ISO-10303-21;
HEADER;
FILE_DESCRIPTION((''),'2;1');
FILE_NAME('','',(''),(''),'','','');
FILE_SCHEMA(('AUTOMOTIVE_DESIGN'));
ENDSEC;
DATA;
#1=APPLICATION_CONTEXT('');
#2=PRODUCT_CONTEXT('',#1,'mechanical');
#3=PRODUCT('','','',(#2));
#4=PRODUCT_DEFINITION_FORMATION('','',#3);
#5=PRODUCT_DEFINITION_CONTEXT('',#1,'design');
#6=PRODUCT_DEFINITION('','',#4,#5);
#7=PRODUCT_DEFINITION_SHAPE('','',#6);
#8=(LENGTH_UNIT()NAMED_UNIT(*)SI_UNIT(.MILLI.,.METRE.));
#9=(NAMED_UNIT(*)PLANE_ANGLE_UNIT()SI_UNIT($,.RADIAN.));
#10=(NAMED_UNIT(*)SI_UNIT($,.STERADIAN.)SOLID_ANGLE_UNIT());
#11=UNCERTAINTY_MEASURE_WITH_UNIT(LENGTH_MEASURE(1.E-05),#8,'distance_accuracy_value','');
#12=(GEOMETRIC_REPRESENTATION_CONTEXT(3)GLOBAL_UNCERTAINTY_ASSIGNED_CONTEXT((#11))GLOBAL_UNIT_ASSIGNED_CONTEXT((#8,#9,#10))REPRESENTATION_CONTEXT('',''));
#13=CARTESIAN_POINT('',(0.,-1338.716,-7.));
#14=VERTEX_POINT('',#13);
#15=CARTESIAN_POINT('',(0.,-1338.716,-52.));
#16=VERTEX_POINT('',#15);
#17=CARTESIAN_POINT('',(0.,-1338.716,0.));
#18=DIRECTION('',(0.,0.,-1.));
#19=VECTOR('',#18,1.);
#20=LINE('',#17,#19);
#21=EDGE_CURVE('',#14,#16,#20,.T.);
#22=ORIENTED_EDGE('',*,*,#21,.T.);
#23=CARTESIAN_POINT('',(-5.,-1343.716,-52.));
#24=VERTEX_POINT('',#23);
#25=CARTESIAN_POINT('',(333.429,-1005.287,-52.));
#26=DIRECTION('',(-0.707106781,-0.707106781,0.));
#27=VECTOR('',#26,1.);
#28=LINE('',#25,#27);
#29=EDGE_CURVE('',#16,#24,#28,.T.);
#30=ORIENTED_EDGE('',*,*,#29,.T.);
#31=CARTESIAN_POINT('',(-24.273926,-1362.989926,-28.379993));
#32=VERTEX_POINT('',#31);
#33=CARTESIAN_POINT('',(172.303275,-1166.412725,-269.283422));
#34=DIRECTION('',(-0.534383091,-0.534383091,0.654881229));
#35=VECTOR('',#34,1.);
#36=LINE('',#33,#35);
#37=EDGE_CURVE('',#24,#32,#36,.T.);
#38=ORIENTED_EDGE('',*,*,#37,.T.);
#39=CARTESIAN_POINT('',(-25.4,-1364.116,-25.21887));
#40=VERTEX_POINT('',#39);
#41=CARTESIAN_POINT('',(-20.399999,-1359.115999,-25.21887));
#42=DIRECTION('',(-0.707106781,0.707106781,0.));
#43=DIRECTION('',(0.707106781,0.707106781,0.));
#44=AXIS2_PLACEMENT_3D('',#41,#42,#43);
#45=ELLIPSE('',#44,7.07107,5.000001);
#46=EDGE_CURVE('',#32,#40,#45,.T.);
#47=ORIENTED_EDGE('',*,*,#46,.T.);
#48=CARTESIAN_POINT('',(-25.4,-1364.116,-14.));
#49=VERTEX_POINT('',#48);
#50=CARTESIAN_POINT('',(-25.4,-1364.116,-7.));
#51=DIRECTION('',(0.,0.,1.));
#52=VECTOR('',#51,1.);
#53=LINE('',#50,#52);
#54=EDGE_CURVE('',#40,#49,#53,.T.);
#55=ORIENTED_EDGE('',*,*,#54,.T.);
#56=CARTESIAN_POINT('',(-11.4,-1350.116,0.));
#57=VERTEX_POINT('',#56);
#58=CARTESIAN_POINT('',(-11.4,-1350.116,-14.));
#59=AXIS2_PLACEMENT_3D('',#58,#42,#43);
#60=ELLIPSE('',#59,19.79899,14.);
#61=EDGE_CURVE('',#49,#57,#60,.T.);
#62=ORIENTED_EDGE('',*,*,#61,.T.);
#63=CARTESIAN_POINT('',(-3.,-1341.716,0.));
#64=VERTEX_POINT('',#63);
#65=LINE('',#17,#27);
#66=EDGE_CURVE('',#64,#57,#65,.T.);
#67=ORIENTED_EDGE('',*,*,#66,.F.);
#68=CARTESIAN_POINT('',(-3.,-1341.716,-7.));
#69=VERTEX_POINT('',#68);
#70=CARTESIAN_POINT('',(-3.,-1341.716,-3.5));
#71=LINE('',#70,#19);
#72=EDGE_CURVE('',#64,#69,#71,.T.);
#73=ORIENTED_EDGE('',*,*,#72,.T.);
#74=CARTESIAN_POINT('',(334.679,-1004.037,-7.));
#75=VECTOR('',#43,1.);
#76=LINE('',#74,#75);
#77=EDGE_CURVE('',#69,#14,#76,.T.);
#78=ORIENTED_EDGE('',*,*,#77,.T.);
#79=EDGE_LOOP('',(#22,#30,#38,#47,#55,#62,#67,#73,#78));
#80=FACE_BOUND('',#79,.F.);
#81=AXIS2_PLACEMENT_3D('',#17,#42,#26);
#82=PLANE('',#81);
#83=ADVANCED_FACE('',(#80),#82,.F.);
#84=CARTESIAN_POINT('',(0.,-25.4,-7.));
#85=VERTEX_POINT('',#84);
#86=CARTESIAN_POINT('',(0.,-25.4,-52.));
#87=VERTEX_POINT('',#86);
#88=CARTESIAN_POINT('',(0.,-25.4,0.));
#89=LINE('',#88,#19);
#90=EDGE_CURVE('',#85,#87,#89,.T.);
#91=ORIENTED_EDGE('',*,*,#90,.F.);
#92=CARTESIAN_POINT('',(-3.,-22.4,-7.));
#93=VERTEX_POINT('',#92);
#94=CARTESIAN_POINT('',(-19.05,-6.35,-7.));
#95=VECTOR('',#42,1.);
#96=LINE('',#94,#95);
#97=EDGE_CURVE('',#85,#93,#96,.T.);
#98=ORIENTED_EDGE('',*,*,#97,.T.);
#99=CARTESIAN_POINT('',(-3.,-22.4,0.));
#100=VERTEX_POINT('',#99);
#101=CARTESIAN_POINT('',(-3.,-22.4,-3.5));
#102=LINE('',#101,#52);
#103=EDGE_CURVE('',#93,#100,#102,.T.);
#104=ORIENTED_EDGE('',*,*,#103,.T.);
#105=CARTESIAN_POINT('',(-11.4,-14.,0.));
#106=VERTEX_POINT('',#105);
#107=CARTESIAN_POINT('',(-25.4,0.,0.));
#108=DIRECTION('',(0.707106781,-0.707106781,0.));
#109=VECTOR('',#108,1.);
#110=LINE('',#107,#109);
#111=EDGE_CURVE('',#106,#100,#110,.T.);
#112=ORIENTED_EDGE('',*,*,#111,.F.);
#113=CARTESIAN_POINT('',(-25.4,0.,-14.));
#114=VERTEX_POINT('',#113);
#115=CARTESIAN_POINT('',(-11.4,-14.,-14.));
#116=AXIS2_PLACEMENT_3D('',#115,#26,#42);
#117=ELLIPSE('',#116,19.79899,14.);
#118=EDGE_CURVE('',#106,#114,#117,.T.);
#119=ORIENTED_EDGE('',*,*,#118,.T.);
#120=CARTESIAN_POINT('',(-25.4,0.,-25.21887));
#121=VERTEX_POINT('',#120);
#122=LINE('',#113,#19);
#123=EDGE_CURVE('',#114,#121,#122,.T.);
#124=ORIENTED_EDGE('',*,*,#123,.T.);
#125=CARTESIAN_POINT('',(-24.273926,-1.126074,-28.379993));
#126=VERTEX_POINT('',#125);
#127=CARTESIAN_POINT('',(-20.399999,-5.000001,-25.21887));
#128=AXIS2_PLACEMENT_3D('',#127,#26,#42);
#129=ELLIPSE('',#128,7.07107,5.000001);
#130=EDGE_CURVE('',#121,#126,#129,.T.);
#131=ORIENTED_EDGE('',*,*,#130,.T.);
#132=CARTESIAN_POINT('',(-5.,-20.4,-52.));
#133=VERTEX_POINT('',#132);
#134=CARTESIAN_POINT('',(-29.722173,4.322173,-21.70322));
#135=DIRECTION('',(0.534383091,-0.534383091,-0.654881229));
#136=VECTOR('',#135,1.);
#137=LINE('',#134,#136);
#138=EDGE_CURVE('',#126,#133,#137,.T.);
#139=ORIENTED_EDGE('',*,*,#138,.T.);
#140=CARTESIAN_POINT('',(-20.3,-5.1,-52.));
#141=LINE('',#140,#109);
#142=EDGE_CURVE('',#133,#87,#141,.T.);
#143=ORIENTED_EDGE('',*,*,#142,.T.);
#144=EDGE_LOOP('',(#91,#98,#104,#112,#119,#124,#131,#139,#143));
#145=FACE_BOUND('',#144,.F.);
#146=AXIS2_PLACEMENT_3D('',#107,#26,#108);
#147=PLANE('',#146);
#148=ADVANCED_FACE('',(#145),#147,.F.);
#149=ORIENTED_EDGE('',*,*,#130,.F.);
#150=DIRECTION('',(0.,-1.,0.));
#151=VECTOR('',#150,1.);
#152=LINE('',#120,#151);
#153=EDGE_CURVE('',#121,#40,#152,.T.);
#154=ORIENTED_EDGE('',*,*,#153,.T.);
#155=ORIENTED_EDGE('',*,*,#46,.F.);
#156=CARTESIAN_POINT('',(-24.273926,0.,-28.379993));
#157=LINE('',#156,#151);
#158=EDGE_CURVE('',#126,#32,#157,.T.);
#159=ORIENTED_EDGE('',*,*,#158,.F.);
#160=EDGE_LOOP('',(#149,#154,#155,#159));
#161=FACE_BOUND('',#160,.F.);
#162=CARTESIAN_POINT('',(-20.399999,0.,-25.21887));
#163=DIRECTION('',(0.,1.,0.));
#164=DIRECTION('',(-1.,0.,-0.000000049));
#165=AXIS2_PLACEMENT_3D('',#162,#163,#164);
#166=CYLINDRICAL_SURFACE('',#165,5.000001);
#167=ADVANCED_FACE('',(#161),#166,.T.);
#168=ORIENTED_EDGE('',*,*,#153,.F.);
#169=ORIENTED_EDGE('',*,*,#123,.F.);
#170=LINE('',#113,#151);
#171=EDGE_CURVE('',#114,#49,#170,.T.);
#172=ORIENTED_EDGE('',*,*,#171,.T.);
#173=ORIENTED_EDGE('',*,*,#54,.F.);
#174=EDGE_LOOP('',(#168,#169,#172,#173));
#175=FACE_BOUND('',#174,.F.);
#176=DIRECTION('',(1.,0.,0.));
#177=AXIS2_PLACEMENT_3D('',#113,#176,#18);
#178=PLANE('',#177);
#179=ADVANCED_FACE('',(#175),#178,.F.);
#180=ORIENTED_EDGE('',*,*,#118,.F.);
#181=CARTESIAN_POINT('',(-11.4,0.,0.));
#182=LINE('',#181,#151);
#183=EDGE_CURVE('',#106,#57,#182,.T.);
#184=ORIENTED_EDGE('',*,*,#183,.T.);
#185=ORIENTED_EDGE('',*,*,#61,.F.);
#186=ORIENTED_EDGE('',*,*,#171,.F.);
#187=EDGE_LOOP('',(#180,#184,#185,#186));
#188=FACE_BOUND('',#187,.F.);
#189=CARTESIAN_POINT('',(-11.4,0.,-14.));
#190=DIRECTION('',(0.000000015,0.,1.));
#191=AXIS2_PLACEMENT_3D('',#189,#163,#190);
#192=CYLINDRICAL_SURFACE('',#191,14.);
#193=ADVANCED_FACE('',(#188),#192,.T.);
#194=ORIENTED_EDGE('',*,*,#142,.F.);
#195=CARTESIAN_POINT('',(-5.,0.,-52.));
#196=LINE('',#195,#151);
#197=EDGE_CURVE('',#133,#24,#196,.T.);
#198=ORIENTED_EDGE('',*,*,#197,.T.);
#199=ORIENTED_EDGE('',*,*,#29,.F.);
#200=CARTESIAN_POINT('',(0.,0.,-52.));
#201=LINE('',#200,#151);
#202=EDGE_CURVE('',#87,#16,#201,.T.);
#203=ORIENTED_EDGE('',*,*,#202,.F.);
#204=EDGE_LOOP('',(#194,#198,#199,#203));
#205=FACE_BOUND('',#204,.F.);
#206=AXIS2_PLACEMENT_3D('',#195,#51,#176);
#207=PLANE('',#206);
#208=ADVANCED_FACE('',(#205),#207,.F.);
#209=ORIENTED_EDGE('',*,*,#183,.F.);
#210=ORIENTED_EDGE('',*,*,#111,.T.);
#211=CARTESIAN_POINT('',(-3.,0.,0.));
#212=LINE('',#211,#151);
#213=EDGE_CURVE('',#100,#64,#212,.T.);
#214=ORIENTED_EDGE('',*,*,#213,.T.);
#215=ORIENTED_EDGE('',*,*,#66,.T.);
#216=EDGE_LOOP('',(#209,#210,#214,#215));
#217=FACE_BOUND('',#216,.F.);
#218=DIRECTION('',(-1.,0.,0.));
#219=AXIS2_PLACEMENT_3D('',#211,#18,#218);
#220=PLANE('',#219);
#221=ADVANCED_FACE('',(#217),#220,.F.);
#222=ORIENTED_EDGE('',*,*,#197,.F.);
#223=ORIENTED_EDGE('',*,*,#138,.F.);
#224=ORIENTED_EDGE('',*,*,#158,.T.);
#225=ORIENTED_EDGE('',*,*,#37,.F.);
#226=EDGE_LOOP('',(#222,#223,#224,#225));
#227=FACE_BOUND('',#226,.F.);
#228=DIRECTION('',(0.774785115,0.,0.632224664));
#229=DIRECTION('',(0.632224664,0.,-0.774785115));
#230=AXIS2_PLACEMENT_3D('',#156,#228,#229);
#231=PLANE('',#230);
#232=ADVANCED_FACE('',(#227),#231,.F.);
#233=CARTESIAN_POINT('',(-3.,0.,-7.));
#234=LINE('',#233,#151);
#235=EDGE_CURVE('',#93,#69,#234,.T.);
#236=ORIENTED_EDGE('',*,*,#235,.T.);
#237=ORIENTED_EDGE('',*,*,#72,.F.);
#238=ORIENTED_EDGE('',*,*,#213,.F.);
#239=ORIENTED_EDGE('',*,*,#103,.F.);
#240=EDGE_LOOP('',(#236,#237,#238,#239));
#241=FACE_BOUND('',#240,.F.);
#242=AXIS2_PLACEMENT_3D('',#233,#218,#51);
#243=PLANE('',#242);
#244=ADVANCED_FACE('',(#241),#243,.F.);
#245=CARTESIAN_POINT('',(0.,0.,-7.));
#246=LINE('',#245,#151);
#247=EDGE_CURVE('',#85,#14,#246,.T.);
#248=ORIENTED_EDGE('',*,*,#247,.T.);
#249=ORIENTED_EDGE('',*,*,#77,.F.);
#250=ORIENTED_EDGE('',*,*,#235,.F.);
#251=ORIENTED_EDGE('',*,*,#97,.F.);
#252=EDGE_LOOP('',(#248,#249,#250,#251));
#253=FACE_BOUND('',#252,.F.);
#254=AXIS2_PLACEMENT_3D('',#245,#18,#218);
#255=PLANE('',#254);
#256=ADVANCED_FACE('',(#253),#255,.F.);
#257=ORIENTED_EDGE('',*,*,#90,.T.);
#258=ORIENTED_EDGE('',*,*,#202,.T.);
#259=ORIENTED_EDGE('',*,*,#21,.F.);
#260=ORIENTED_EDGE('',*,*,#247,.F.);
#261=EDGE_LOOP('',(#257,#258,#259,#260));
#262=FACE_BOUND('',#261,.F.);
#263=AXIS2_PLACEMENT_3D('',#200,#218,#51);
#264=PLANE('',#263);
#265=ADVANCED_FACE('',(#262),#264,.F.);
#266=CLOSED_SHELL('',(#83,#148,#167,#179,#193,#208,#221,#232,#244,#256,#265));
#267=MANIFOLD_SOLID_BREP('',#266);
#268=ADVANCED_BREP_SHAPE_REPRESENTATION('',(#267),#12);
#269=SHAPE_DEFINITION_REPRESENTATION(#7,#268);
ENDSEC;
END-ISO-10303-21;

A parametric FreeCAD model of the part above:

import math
import FreeCAD as App
import Part
import Sketcher
from FreeCAD import Vector
Q = App.Units.Quantity


def add_polygon(sketch, points):
    """Adds a closed chain of lines whose ends are joined by coincident constraints."""
    first, n = sketch.GeometryCount, len(points)
    for a, b in zip(points, points[1:] + points[:1]):
        sketch.addGeometry(Part.LineSegment(App.Vector(*a, 0), App.Vector(*b, 0)), False)
    for i in range(n):
        sketch.addConstraint(Sketcher.Constraint("Coincident", first + i, 2, first + (i + 1) % n, 1))

doc = App.newDocument("Part")
body = doc.addObject("PartDesign::Body", "Body")

sketch1 = doc.addObject("Sketcher::SketchObject", "Sketch")
body.addObject(sketch1)
sketch1.AttachmentSupport = (doc.XZ_Plane, [""])
sketch1.MapMode = "FlatFace"
sketch1.addGeometry(Part.LineSegment(Vector(-3, 0, 0), Vector(-11.4, 0, 0)), False)
sketch1.addGeometry(Part.ArcOfCircle(Part.Circle(Vector(-11.4, -14, 0), Vector(0, 0, 1), 14), math.radians(90), math.radians(180)), False)
sketch1.addGeometry(Part.LineSegment(Vector(-25.4, -14, 0), Vector(-25.4, -25.2, 0)), False)
sketch1.addGeometry(Part.ArcOfCircle(Part.Circle(Vector(-20.4, -25.2, 0), Vector(0, 0, 1), 5), math.radians(-180), math.radians(-141)), False)
sketch1.addGeometry(Part.LineSegment(Vector(-24.3, -28.4, 0), Vector(-5, -52, 0)), False)
sketch1.addGeometry(Part.LineSegment(Vector(-5, -52, 0), Vector(0, -52, 0)), False)
sketch1.addGeometry(Part.LineSegment(Vector(0, -52, 0), Vector(0, -7, 0)), False)
sketch1.addGeometry(Part.LineSegment(Vector(0, -7, 0), Vector(-3, -7, 0)), False)
sketch1.addGeometry(Part.LineSegment(Vector(-3, -7, 0), Vector(-3, 0, 0)), False)
sketch1.addConstraint(Sketcher.Constraint("Tangent", 0, 2, 1, 1))
sketch1.addConstraint(Sketcher.Constraint("Tangent", 1, 2, 2, 1))
sketch1.addConstraint(Sketcher.Constraint("Tangent", 2, 2, 3, 1))
sketch1.addConstraint(Sketcher.Constraint("Tangent", 3, 2, 4, 1))
sketch1.addConstraint(Sketcher.Constraint("Coincident", 4, 2, 5, 1))
sketch1.addConstraint(Sketcher.Constraint("Coincident", 5, 2, 6, 1))
sketch1.addConstraint(Sketcher.Constraint("Coincident", 6, 2, 7, 1))
sketch1.addConstraint(Sketcher.Constraint("Coincident", 7, 2, 8, 1))
sketch1.addConstraint(Sketcher.Constraint("Coincident", 8, 2, 0, 1))
sketch1.addConstraint(Sketcher.Constraint("Horizontal", 0))
sketch1.addConstraint(Sketcher.Constraint("Vertical", 2))
sketch1.addConstraint(Sketcher.Constraint("Horizontal", 5))
sketch1.addConstraint(Sketcher.Constraint("Vertical", 6))
sketch1.addConstraint(Sketcher.Constraint("Horizontal", 7))
sketch1.addConstraint(Sketcher.Constraint("Vertical", 8))
sketch1.addConstraint(Sketcher.Constraint("PointOnObject", 0, 2, -1))
sketch1.addConstraint(Sketcher.Constraint("PointOnObject", 5, 2, -2))
sketch1.addConstraint(Sketcher.Constraint("Radius", 1, Q("14 mm")))
sketch1.addConstraint(Sketcher.Constraint("Radius", 3, Q("5.000001 mm")))
sketch1.addConstraint(Sketcher.Constraint("DistanceX", 5, 1, 5, 2, Q("5 mm")))
sketch1.addConstraint(Sketcher.Constraint("DistanceX", 7, 2, 7, 1, Q("3 mm")))
sketch1.addConstraint(Sketcher.Constraint("DistanceY", 6, 1, 6, 2, Q("45 mm")))
sketch1.addConstraint(Sketcher.Constraint("DistanceY", 8, 1, 8, 2, Q("7 mm")))
sketch1.addConstraint(Sketcher.Constraint("DistanceX", 0, 2, 0, 1, Q("8.4 mm")))
sketch1.addConstraint(Sketcher.Constraint("DistanceY", 2, 2, 2, 1, Q("11.21887 mm")))
pad1 = doc.addObject("PartDesign::Pad", "Pad")
body.addObject(pad1)
pad1.Profile = sketch1
pad1.Length = 1400

sketch2 = doc.addObject("Sketcher::SketchObject", "Sketch001")
body.addObject(sketch2)
sketch2.AttachmentSupport = (doc.XY_Plane, [""])
sketch2.MapMode = "FlatFace"
add_polygon(sketch2, [(-25.4, 2.4), (-25.4, 0), (0, -25.4), (0, 0), (2.5, 2.4)])
add_polygon(sketch2, [(12, -1377.7), (0, -1338.7), (-53.2, -1391.9), (5.7, -1417.4)])
sketch2.addConstraint(Sketcher.Constraint("Vertical", 0))
sketch2.addConstraint(Sketcher.Constraint("Vertical", 2))
sketch2.addConstraint(Sketcher.Constraint("Horizontal", 4))
sketch2.addConstraint(Sketcher.Constraint("Coincident", 2, 2, -1, 1))
sketch2.addConstraint(Sketcher.Constraint("PointOnObject", 0, 2, -1))
sketch2.addConstraint(Sketcher.Constraint("PointOnObject", 5, 2, -2))
sketch2.addConstraint(Sketcher.Constraint("Perpendicular", 1, 6))
sketch2.addConstraint(Sketcher.Constraint("Angle", 1, Q("-45 deg")))
sketch2.addConstraint(Sketcher.Constraint("DistanceY", 2, 1, 2, 2, Q("25.4 mm")))
sketch2.addConstraint(Sketcher.Constraint("DistanceY", 5, 2, -1, 1, Q("1338.716 mm")))
sketch2.addConstraint(Sketcher.Constraint("DistanceY", 0, 2, 0, 1, Q("2.43225 mm")))
sketch2.addConstraint(Sketcher.Constraint("DistanceX", 7, 2, 8, 2, Q("6.297602 mm")))
sketch2.addConstraint(Sketcher.Constraint("Distance", 3, Q("3.46601 mm")))
sketch2.addConstraint(Sketcher.Constraint("Distance", 5, Q("40.747152 mm")))
sketch2.addConstraint(Sketcher.Constraint("Distance", 7, Q("64.176879 mm")))
sketch2.addConstraint(Sketcher.Constraint("DistanceY", 8, 2, -1, 1, Q("1377.653718 mm")))
sketch2.addConstraint(Sketcher.Constraint("DistanceX", 6, 2, 8, 2, Q("65.20777 mm")))
pocket1 = doc.addObject("PartDesign::Pocket", "Pocket")
body.addObject(pocket1)
pocket1.Profile = sketch2
pocket1.Type = "ThroughAll"

doc.recompute()
